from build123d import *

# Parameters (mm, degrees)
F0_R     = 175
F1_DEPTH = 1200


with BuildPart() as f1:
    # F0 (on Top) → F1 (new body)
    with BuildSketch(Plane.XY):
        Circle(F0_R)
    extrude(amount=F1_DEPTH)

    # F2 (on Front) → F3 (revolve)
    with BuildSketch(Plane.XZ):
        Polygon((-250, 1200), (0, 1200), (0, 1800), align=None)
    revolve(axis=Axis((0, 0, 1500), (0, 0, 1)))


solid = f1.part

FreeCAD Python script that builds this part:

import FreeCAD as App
import Part
import Sketcher


def add_polygon(sketch, points):
    """Adds a closed chain of lines whose ends are joined by coincident constraints."""
    first, n = sketch.GeometryCount, len(points)
    for a, b in zip(points, points[1:] + points[:1]):
        sketch.addGeometry(Part.LineSegment(App.Vector(*a, 0), App.Vector(*b, 0)), False)
    for i in range(n):
        sketch.addConstraint(Sketcher.Constraint("Coincident", first + i, 2, first + (i + 1) % n, 1))

doc = App.newDocument("Part")
body = doc.addObject("PartDesign::Body", "Body")

sketch1 = doc.addObject("Sketcher::SketchObject", "Sketch")
body.addObject(sketch1)
sketch1.AttachmentSupport = (doc.XY_Plane, [""])
sketch1.MapMode = "FlatFace"
sketch1.addGeometry(Part.Circle(App.Vector(0, 0, 0), App.Vector(0, 0, 1), 175), False)
sketch1.addConstraint([
    Sketcher.Constraint("Coincident", 0, 3, -1, 1),
    Sketcher.Constraint("Diameter", 0, 350.0),
])
pad1 = doc.addObject("PartDesign::Pad", "Pad")
body.addObject(pad1)
pad1.Profile = sketch1
pad1.Length = 1200

sketch2 = doc.addObject("Sketcher::SketchObject", "Sketch001")
body.addObject(sketch2)
sketch2.AttachmentSupport = (doc.XZ_Plane, [""])
sketch2.MapMode = "FlatFace"
add_polygon(sketch2, [(-250, 1200), (0, 1200), (0, 1800)])
sketch2.addConstraint([
    Sketcher.Constraint("Horizontal", 0),
    Sketcher.Constraint("Vertical", 1),
    Sketcher.Constraint("PointOnObject", 0, 2, -2),
    Sketcher.Constraint("DistanceX", 0, 1, 0, 2, 250.0),
    Sketcher.Constraint("DistanceY", 1, 1, 1, 2, 600.0),
    Sketcher.Constraint("DistanceY", -1, 1, 0, 2, 1200.0),
])
revolution = doc.addObject("PartDesign::Revolution", "Revolution")
body.addObject(revolution)
revolution.Profile = sketch2
revolution.ReferenceAxis = (sketch2, ["V_Axis"])
revolution.Angle = 360

doc.recompute()
